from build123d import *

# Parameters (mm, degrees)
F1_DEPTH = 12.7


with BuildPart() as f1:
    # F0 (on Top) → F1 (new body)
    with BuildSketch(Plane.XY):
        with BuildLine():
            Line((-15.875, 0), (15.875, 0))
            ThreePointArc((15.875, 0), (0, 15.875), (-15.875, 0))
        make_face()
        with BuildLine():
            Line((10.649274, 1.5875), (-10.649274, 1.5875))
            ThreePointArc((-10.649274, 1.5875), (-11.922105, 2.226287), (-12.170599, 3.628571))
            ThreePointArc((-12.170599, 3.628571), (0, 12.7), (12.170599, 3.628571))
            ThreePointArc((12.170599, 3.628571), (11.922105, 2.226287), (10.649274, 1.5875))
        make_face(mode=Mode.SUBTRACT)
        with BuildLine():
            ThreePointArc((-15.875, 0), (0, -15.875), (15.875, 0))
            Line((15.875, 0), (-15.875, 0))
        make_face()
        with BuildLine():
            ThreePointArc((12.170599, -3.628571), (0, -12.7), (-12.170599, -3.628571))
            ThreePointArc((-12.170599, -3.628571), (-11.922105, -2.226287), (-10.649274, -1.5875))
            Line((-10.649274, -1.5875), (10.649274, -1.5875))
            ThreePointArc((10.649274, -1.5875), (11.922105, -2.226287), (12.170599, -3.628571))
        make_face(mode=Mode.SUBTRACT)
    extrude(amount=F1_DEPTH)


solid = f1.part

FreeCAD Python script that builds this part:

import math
import FreeCAD as App
import Part
import Sketcher
Q = App.Units.Quantity

doc = App.newDocument("Part")
body = doc.addObject("PartDesign::Body", "Body")

# Sketch on XY plane
sketch1 = body.newObject("Sketcher::SketchObject", "Sketch")
sketch1.AttachmentSupport = (doc.getObject("XY_Plane"), [""])
sketch1.MapMode = "FlatFace"
sketch1.addGeometry([
    Part.Circle(App.Vector(0, 0, 0), App.Vector(0, 0, 1), 15.9),  # 0
    Part.ArcOfCircle(Part.Circle(App.Vector(10.6, -3.2, 0), App.Vector(0, 0, 1), 1.6), math.radians(-17), math.radians(90)),  # 1
    Part.ArcOfCircle(Part.Circle(App.Vector(0, 0, 0), App.Vector(0, 0, 1), 12.7), math.radians(-163), math.radians(-17)),  # 2
    Part.ArcOfCircle(Part.Circle(App.Vector(-10.6, -3.2, 0), App.Vector(0, 0, 1), 1.6), math.radians(90), math.radians(197)),  # 3
    Part.LineSegment(App.Vector(-10.6, -1.6, 0), App.Vector(10.6, -1.6, 0)),  # 4
    Part.ArcOfCircle(Part.Circle(App.Vector(10.6, 3.2, 0), App.Vector(0, 0, 1), 1.6), math.radians(-90), math.radians(17)),  # 5
    Part.LineSegment(App.Vector(10.6, 1.6, 0), App.Vector(-10.6, 1.6, 0)),  # 6
    Part.ArcOfCircle(Part.Circle(App.Vector(-10.6, 3.2, 0), App.Vector(0, 0, 1), 1.6), math.radians(163), math.radians(270)),  # 7
    Part.ArcOfCircle(Part.Circle(App.Vector(0, 0, 0), App.Vector(0, 0, 1), 12.7), math.radians(17), math.radians(163)),  # 8
], False)
sketch1.addConstraint([
    Sketcher.Constraint("Tangent", 1, 1, 2, 2),
    Sketcher.Constraint("Tangent", 2, 1, 3, 2),
    Sketcher.Constraint("Tangent", 3, 1, 4, 1),
    Sketcher.Constraint("Tangent", 4, 2, 1, 2),
    Sketcher.Constraint("Tangent", 5, 1, 6, 1),
    Sketcher.Constraint("Tangent", 6, 2, 7, 2),
    Sketcher.Constraint("Tangent", 7, 1, 8, 2),
    Sketcher.Constraint("Tangent", 8, 1, 5, 2),
    Sketcher.Constraint("Horizontal", 4),
    Sketcher.Constraint("Horizontal", 6),
    Sketcher.Constraint("Coincident", 0, 3, -1, 1),
    Sketcher.Constraint("Coincident", 2, 3, -1, 1),
    Sketcher.Constraint("Coincident", 8, 3, -1, 1),
    Sketcher.Constraint("Equal", 1, 3),
    Sketcher.Constraint("Equal", 3, 5),
    Sketcher.Constraint("Equal", 5, 7),
    Sketcher.Constraint("Equal", 2, 8),
    Sketcher.Constraint("Vertical", 1, 3, 5, 3),
    Sketcher.Constraint("Radius", 2, Q("0.5 in")),
    Sketcher.Constraint("Diameter", 0, Q("1.25 in")),
    Sketcher.Constraint("Radius", 1, Q("0.0625 in")),
    Sketcher.Constraint("DistanceY", 1, 3, 5, 3, Q("0.25 in")),
])
pad1 = body.newObject("PartDesign::Pad", "Pad")
pad1.Profile = sketch1
pad1.Length = Q("0.5 in")

doc.recompute()
